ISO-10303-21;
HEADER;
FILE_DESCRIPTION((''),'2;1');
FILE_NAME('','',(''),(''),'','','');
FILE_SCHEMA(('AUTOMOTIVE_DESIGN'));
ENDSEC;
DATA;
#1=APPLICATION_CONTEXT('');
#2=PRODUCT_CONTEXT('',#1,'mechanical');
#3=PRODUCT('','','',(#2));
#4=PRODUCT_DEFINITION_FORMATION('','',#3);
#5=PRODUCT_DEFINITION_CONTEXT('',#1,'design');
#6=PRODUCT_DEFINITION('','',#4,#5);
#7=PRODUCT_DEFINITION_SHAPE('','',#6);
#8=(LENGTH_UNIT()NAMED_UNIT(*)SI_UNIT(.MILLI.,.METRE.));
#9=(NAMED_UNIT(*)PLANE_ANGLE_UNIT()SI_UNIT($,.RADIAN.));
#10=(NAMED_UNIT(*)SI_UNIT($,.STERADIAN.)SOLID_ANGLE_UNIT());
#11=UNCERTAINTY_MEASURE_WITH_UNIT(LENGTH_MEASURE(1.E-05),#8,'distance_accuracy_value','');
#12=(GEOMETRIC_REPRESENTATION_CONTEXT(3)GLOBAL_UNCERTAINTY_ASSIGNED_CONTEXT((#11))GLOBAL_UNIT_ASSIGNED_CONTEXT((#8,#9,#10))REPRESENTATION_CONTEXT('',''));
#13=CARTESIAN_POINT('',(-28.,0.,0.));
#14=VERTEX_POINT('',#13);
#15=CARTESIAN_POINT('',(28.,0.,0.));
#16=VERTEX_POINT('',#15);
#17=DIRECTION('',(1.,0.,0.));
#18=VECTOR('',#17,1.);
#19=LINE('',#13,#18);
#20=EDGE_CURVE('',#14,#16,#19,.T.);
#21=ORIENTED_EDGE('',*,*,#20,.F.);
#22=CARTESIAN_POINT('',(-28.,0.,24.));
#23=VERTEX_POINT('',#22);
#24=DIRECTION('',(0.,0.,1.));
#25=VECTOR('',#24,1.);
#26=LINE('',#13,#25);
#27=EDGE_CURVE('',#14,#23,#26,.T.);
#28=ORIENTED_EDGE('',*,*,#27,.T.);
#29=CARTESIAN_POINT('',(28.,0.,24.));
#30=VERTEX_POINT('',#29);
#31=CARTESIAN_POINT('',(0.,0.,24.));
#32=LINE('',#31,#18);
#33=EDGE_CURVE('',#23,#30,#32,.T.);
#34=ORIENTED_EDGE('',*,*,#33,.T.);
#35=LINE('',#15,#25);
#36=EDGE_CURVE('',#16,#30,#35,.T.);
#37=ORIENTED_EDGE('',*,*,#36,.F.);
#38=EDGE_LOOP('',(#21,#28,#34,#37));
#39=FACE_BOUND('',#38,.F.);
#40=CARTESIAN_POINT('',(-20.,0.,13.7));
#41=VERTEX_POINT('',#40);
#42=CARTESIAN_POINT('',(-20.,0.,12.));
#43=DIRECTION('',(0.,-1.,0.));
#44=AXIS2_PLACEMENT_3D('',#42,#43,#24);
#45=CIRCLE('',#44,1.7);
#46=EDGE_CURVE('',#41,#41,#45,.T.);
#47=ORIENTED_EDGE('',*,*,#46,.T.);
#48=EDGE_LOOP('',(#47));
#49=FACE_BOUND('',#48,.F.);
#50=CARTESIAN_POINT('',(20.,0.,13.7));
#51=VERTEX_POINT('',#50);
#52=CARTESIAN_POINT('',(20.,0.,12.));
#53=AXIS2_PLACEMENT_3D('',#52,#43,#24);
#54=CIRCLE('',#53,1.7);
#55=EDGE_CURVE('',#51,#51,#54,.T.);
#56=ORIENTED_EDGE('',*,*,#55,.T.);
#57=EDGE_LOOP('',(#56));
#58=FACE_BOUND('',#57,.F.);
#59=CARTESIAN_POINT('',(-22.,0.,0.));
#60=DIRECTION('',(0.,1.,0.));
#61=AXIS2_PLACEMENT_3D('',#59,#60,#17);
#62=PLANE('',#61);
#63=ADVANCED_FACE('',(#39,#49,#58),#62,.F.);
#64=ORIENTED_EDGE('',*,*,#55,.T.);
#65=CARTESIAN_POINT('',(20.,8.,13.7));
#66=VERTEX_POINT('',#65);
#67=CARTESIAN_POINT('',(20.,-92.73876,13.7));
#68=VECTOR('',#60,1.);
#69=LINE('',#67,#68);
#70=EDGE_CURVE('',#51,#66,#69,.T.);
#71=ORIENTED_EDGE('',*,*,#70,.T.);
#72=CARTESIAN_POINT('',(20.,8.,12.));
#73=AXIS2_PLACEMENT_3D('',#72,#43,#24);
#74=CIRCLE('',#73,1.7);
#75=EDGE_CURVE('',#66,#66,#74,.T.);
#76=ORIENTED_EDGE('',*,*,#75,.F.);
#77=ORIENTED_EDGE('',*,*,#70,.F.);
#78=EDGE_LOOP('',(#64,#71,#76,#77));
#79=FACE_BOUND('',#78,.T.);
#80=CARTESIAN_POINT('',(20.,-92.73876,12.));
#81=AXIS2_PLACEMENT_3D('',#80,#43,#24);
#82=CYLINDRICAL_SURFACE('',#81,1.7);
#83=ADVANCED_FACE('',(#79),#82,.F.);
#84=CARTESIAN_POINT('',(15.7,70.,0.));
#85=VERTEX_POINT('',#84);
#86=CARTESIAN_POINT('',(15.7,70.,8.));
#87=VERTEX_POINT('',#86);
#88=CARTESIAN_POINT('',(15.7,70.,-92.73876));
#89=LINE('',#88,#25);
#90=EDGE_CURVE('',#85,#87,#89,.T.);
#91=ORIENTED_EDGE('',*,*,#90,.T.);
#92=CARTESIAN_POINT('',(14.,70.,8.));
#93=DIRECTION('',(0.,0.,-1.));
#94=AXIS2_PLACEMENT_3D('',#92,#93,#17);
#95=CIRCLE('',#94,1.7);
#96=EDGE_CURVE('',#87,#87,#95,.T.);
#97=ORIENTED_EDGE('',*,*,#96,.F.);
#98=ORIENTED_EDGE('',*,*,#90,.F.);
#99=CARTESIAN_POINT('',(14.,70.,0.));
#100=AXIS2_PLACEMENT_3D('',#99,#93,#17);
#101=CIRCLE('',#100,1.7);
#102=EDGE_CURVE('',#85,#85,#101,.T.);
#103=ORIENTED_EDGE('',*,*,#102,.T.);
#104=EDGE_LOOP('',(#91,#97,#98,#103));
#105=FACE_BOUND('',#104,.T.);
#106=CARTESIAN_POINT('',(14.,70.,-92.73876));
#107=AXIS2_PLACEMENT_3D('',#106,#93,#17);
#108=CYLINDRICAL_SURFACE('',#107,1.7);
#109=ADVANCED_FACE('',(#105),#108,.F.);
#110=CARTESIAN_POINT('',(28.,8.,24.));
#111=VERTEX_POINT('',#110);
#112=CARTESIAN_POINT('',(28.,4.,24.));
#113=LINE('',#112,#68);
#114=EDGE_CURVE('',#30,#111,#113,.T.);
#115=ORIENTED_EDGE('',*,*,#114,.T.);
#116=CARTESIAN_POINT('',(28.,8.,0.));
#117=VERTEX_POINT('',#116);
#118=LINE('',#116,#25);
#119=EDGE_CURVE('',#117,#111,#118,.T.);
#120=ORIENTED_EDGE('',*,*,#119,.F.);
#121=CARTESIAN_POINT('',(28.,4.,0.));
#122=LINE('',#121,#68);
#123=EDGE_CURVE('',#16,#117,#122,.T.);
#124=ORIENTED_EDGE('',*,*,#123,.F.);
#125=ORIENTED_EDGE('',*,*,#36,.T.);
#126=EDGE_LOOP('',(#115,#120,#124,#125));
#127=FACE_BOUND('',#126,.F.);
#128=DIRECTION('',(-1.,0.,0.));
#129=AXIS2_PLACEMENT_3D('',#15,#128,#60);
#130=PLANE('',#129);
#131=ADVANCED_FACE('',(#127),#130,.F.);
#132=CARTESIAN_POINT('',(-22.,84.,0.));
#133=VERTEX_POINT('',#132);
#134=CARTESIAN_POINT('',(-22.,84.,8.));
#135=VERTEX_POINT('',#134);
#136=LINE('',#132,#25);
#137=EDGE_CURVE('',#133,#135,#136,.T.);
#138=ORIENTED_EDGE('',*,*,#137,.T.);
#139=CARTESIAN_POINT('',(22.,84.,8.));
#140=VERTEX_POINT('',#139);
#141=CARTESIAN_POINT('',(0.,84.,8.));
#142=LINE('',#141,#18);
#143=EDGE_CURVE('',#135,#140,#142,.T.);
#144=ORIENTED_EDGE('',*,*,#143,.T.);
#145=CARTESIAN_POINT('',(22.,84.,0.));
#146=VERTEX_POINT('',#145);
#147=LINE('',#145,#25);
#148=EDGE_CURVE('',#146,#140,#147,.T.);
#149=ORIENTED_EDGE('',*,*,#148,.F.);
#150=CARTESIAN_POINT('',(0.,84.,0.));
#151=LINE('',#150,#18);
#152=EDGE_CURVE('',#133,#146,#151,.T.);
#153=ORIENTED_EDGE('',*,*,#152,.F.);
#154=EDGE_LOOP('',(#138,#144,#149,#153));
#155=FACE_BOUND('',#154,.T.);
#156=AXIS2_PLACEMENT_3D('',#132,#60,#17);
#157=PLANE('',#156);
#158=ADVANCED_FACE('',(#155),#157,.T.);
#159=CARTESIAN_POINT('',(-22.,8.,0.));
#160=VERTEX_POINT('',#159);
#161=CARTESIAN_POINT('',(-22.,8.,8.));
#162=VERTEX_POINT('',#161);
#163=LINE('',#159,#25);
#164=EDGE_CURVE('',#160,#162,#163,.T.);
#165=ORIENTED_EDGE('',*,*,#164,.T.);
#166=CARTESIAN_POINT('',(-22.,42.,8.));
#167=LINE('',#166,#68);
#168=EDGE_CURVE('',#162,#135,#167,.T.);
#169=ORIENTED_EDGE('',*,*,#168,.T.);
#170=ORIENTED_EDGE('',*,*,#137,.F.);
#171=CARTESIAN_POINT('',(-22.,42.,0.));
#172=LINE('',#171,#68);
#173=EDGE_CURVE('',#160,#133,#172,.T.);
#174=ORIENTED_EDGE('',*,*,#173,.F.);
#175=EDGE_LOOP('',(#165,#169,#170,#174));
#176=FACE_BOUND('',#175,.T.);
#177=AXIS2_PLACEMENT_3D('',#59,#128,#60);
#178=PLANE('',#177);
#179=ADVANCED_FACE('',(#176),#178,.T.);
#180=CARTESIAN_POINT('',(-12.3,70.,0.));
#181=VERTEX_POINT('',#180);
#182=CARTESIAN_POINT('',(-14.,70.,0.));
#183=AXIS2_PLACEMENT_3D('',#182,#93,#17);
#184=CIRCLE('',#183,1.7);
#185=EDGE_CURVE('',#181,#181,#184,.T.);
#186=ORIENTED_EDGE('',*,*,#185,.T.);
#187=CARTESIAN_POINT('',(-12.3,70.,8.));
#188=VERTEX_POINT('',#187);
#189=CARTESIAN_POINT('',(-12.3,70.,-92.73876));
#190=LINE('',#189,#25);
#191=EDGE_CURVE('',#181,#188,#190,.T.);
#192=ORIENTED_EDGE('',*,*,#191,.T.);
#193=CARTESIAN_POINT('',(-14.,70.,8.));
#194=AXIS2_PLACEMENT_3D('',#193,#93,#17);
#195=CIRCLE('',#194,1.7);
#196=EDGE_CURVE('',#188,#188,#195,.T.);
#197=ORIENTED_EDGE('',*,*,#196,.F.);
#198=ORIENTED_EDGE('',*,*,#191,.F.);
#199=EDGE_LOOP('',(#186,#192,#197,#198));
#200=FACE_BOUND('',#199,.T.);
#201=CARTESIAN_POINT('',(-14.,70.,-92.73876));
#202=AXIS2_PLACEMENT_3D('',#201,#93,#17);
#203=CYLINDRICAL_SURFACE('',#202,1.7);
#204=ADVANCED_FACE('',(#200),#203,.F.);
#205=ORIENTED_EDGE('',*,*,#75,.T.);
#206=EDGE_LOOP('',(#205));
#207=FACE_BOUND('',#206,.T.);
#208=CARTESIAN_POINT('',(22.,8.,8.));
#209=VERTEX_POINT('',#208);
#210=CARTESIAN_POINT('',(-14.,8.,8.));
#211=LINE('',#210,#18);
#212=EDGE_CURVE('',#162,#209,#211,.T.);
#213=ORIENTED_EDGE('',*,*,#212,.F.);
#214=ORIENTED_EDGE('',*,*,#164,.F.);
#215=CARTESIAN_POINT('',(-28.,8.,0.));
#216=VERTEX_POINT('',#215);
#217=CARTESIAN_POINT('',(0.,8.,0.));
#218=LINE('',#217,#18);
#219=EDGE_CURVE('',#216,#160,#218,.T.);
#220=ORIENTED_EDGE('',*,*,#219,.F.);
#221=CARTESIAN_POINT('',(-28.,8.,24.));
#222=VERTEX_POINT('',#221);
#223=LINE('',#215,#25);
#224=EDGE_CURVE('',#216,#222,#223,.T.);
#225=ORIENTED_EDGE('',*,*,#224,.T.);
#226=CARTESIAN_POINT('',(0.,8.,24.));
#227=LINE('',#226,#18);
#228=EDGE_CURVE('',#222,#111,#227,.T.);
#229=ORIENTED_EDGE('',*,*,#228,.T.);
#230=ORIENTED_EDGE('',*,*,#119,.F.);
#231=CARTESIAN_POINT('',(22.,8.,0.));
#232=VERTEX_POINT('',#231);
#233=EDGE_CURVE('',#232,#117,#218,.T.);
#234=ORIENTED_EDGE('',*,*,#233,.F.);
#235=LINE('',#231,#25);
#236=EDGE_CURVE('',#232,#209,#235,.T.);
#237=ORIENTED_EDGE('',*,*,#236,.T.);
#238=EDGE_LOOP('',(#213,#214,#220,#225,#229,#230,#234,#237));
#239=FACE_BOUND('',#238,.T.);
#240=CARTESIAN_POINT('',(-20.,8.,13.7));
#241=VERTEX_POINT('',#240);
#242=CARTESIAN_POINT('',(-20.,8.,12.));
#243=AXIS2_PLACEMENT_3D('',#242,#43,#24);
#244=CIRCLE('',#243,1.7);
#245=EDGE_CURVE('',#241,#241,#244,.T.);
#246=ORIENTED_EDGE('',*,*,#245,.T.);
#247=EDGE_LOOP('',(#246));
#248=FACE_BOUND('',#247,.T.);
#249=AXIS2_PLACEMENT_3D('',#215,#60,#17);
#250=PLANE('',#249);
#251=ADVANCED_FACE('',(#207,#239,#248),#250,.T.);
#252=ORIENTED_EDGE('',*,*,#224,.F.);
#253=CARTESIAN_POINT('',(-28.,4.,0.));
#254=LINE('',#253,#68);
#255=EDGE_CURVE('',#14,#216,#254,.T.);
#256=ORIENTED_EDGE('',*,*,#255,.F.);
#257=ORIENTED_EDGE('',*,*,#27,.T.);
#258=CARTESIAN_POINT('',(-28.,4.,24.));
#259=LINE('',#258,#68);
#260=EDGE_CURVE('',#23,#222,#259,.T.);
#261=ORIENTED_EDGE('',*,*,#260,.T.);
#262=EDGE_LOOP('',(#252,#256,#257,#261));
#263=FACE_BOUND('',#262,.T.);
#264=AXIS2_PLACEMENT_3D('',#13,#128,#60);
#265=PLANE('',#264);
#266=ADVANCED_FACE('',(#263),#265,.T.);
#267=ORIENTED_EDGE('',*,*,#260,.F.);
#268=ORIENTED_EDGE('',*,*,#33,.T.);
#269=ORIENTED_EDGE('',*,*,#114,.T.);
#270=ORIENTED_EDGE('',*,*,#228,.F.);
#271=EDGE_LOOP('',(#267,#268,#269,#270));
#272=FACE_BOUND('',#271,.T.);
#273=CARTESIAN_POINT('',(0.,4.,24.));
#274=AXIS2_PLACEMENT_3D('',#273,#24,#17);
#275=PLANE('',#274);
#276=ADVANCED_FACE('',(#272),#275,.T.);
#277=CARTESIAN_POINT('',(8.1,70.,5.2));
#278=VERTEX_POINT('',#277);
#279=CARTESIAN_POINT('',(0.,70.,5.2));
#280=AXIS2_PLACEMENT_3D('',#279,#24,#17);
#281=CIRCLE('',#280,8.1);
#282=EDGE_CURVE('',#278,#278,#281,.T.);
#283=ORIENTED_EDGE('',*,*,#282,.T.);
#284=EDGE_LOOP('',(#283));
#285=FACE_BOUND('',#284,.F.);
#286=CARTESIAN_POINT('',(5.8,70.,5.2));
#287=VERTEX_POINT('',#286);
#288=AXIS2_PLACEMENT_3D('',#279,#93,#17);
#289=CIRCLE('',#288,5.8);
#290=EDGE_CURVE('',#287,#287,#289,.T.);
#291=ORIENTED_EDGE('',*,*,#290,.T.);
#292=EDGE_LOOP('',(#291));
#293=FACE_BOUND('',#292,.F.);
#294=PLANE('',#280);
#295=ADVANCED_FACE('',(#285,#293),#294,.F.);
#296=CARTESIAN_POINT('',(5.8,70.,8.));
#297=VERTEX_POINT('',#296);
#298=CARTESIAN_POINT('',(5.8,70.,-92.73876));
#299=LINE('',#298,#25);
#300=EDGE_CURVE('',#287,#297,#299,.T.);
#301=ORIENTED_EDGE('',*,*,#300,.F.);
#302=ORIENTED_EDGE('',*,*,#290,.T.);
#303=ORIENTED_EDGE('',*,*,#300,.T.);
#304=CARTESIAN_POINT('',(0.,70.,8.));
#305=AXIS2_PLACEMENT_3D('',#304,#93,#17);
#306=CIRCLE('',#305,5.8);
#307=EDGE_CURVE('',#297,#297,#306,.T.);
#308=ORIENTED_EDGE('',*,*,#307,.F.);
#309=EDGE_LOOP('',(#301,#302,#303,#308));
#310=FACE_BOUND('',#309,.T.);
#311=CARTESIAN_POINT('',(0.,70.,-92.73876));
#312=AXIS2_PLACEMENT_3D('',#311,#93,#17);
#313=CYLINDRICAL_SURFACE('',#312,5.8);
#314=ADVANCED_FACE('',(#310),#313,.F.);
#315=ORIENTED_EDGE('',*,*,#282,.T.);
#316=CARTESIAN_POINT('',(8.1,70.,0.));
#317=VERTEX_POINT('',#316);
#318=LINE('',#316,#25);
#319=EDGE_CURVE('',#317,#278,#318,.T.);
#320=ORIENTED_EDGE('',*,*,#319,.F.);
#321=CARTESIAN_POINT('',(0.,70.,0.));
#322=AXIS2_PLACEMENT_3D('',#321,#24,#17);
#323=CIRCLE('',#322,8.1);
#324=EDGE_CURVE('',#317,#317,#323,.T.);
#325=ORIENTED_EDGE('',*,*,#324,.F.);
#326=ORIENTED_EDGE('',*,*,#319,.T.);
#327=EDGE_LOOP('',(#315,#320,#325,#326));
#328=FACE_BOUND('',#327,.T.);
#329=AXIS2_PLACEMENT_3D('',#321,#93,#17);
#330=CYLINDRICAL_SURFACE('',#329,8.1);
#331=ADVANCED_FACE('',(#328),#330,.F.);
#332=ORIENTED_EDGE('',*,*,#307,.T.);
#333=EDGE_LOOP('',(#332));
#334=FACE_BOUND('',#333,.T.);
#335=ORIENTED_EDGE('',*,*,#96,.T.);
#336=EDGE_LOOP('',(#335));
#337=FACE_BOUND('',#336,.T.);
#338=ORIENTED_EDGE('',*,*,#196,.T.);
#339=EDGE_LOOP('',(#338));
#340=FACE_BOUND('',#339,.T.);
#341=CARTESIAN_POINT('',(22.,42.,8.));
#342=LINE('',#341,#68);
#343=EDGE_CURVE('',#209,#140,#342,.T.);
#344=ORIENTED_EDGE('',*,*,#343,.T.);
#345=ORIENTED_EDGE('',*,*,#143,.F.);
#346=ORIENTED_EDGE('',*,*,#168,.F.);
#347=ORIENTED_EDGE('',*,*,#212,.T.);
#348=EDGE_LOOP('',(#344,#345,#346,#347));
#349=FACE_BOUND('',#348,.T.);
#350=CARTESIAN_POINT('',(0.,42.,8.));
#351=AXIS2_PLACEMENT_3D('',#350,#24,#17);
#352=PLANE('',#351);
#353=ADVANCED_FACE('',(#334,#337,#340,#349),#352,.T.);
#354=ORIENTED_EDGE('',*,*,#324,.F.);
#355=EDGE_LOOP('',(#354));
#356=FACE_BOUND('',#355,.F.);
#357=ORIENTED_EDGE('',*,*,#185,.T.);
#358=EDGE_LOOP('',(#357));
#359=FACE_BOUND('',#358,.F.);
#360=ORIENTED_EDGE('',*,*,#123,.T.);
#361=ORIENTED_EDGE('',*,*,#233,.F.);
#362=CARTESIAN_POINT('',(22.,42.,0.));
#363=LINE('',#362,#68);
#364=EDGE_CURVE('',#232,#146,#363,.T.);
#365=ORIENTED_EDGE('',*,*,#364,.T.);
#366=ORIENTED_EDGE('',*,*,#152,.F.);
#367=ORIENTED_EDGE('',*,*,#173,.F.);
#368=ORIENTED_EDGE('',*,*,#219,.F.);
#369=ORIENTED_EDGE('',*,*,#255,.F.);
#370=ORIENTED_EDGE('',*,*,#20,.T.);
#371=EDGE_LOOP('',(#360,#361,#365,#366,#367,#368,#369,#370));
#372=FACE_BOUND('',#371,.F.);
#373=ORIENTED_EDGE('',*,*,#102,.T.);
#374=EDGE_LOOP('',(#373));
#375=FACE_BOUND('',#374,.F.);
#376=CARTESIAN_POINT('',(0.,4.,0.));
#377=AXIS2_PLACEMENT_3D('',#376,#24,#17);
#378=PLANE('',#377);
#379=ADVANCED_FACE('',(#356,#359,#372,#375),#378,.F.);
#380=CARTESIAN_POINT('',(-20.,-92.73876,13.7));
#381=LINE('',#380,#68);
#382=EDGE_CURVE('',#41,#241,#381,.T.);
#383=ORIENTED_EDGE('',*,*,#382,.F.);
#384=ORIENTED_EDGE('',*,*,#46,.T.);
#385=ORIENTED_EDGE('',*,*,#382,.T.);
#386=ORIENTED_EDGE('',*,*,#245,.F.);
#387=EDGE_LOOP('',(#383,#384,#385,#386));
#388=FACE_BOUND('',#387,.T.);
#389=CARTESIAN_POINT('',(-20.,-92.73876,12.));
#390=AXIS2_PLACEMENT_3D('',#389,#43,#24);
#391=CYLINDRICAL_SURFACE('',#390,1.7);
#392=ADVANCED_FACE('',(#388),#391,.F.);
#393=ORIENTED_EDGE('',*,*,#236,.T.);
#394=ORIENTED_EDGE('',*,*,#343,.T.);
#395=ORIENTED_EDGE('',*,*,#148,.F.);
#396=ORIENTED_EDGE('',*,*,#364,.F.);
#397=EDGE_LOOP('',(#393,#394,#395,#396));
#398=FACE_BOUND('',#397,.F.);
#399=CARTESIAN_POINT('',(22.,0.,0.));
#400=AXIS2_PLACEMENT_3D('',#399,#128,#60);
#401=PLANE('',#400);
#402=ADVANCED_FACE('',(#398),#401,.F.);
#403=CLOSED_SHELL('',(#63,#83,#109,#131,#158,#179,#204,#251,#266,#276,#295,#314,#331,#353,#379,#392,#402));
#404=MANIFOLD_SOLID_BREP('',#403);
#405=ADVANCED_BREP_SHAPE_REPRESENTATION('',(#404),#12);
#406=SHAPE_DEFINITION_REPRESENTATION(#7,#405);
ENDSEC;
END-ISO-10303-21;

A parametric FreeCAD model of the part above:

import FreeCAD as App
import Part
import Sketcher
Q = App.Units.Quantity


def add_polygon(sketch, points):
    """Adds a closed chain of lines whose ends are joined by coincident constraints."""
    first, n = sketch.GeometryCount, len(points)
    for a, b in zip(points, points[1:] + points[:1]):
        sketch.addGeometry(Part.LineSegment(App.Vector(*a, 0), App.Vector(*b, 0)), False)
    for i in range(n):
        sketch.addConstraint(Sketcher.Constraint("Coincident", first + i, 2, first + (i + 1) % n, 1))

doc = App.newDocument("Part")
body = doc.addObject("PartDesign::Body", "Body")

sketch1 = body.newObject("Sketcher::SketchObject", "Sketch")
sketch1.AttachmentSupport = (doc.getObject("XY_Plane"), [""])
sketch1.MapMode = "FlatFace"
add_polygon(sketch1, [(-28, 8), (-28, 0), (28, 0), (28, 8)])
sketch1.addConstraint(Sketcher.Constraint("Vertical", 0))
sketch1.addConstraint(Sketcher.Constraint("Horizontal", 1))
sketch1.addConstraint(Sketcher.Constraint("Vertical", 2))
sketch1.addConstraint(Sketcher.Constraint("Horizontal", 3))
sketch1.addConstraint(Sketcher.Constraint("Symmetric", 0, 2, 1, 2, -1, 1))
sketch1.addConstraint(Sketcher.Constraint("DistanceX", 1, 1, 1, 2, Q("56 mm")))
sketch1.addConstraint(Sketcher.Constraint("DistanceY", 0, 2, 0, 1, Q("8 mm")))
pad1 = body.newObject("PartDesign::Pad", "Pad")
pad1.Profile = sketch1
pad1.Length = 24

sketch2 = body.newObject("Sketcher::SketchObject", "Sketch001")
sketch2.AttachmentSupport = (doc.getObject("XY_Plane"), [""])
sketch2.MapMode = "FlatFace"
add_polygon(sketch2, [(-22, 84), (-22, 0), (22, 0), (22, 84)])
sketch2.addConstraint(Sketcher.Constraint("Vertical", 0))
sketch2.addConstraint(Sketcher.Constraint("Horizontal", 1))
sketch2.addConstraint(Sketcher.Constraint("Vertical", 2))
sketch2.addConstraint(Sketcher.Constraint("Horizontal", 3))
sketch2.addConstraint(Sketcher.Constraint("Symmetric", 0, 2, 1, 2, -1, 1))
sketch2.addConstraint(Sketcher.Constraint("DistanceX", 1, 1, 1, 2, Q("44 mm")))
sketch2.addConstraint(Sketcher.Constraint("DistanceY", 0, 2, 0, 1, Q("84 mm")))
pad2 = body.newObject("PartDesign::Pad", "Pad001")
pad2.Profile = sketch2
pad2.Length = 8

sketch3 = body.newObject("Sketcher::SketchObject", "Sketch002")
sketch3.AttachmentSupport = (doc.getObject("XY_Plane"), [""])
sketch3.MapMode = "FlatFace"
sketch3.addGeometry(Part.Circle(App.Vector(0, 70, 0), App.Vector(0, 0, 1), 5.8), False)
sketch3.addGeometry(Part.Circle(App.Vector(-14, 70, 0), App.Vector(0, 0, 1), 1.7), False)
sketch3.addGeometry(Part.Circle(App.Vector(14, 70, 0), App.Vector(0, 0, 1), 1.7), False)
sketch3.addConstraint(Sketcher.Constraint("Equal", 1, 2))
sketch3.addConstraint(Sketcher.Constraint("Symmetric", 1, 3, 2, 3, -2))
sketch3.addConstraint(Sketcher.Constraint("PointOnObject", 0, 3, -2))
sketch3.addConstraint(Sketcher.Constraint("Horizontal", 0, 3, 1, 3))
sketch3.addConstraint(Sketcher.Constraint("Diameter", 0, Q("11.6 mm")))
sketch3.addConstraint(Sketcher.Constraint("Diameter", 1, Q("3.4 mm")))
sketch3.addConstraint(Sketcher.Constraint("DistanceY", -1, 1, 0, 3, Q("70 mm")))
sketch3.addConstraint(Sketcher.Constraint("DistanceX", 1, 3, -1, 1, Q("14 mm")))
pocket1 = body.newObject("PartDesign::Pocket", "Pocket")
pocket1.Profile = sketch3
pocket1.Type = "ThroughAll"
pocket1.Midplane = True

sketch4 = body.newObject("Sketcher::SketchObject", "Sketch003")
sketch4.AttachmentSupport = (doc.getObject("XY_Plane"), [""])
sketch4.MapMode = "FlatFace"
sketch4.addGeometry(Part.Circle(App.Vector(0, 70, 0), App.Vector(0, 0, 1), 8), False)
sketch4.addConstraint(Sketcher.Constraint("PointOnObject", 0, 3, -2))
sketch4.addConstraint(Sketcher.Constraint("Diameter", 0, Q("16.2 mm")))
sketch4.addConstraint(Sketcher.Constraint("DistanceY", -1, 1, 0, 3, Q("70 mm")))
pocket2 = body.newObject("PartDesign::Pocket", "Pocket001")
pocket2.Profile = sketch4
pocket2.Length = 5.2
pocket2.Reversed = True

sketch5 = body.newObject("Sketcher::SketchObject", "Sketch004")
sketch5.AttachmentSupport = (doc.getObject("XZ_Plane"), [""])
sketch5.MapMode = "FlatFace"
sketch5.addGeometry(Part.Circle(App.Vector(-20, 12, 0), App.Vector(0, 0, 1), 1.7), False)
sketch5.addGeometry(Part.Circle(App.Vector(20, 12, 0), App.Vector(0, 0, 1), 1.7), False)
sketch5.addConstraint(Sketcher.Constraint("Equal", 0, 1))
sketch5.addConstraint(Sketcher.Constraint("Symmetric", 0, 3, 1, 3, -2))
sketch5.addConstraint(Sketcher.Constraint("Diameter", 0, Q("3.4 mm")))
sketch5.addConstraint(Sketcher.Constraint("DistanceX", 0, 3, -1, 1, Q("20 mm")))
sketch5.addConstraint(Sketcher.Constraint("DistanceY", -1, 1, 0, 3, Q("12 mm")))
pocket3 = body.newObject("PartDesign::Pocket", "Pocket002")
pocket3.Profile = sketch5
pocket3.Type = "ThroughAll"
pocket3.Midplane = True

doc.recompute()
